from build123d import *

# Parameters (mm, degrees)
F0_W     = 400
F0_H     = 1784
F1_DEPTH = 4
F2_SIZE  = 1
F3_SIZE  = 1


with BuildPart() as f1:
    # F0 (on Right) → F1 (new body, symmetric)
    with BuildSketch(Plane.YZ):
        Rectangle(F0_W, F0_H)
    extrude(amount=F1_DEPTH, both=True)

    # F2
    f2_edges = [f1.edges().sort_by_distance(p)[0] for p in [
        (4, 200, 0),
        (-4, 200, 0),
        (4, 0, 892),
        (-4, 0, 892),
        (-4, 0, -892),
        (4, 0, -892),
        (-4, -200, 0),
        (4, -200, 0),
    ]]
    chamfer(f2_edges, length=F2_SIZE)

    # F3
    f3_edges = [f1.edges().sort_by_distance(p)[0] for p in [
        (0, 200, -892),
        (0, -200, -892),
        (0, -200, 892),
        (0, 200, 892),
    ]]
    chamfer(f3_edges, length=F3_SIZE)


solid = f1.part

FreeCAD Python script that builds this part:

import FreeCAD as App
import Part
import Sketcher


def edges_at(feature, points):
    """Names of the edges that pass closest to the given points."""
    edges = feature.Shape.Edges
    near = lambda p: min(range(len(edges)), key=lambda i: edges[i].distToShape(Part.Vertex(*p))[0])
    return sorted({f"Edge{near(p) + 1}" for p in points})


def add_polygon(sketch, points):
    """Adds a closed chain of lines whose ends are joined by coincident constraints."""
    first, n = sketch.GeometryCount, len(points)
    for a, b in zip(points, points[1:] + points[:1]):
        sketch.addGeometry(Part.LineSegment(App.Vector(*a, 0), App.Vector(*b, 0)), False)
    for i in range(n):
        sketch.addConstraint(Sketcher.Constraint("Coincident", first + i, 2, first + (i + 1) % n, 1))

doc = App.newDocument("Part")
params = doc.addObject("Spreadsheet::Sheet", "Params")
for row, (alias, value) in enumerate([
    ("sketch1_width", "400 mm"),
    ("sketch1_height", "1784 mm"),
    ("pad1_length", "8 mm"),
    ("chamfer_size", "1 mm"),
    ("chamfer2_size", "1 mm"),
], start=1):
    params.set(f"A{row}", alias)
    params.set(f"B{row}", "=" + value)
    params.setAlias(f"B{row}", alias)

body = doc.addObject("PartDesign::Body", "Body")

# Sketch on YZ plane
sketch1 = body.newObject("Sketcher::SketchObject", "Sketch")
sketch1.AttachmentSupport = (doc.getObject("YZ_Plane"), [""])
sketch1.MapMode = "FlatFace"
add_polygon(sketch1, [(-200, 892), (-200, -892), (200, -892), (200, 892)])  # lines 0-3
sketch1.addConstraint(Sketcher.Constraint("Vertical", 0))
sketch1.addConstraint(Sketcher.Constraint("Horizontal", 1))
sketch1.addConstraint(Sketcher.Constraint("Vertical", 2))
sketch1.addConstraint(Sketcher.Constraint("Horizontal", 3))
sketch1.addConstraint(Sketcher.Constraint("Symmetric", 0, 2, 2, 2, -1, 1))
sketch1.addConstraint(Sketcher.Constraint("DistanceX", 1, 1, 1, 2, 400.0))
sketch1.addConstraint(Sketcher.Constraint("DistanceY", 0, 2, 0, 1, 1784.0))
sketch1.setExpression("Constraints[9]", "Params.sketch1_width")
sketch1.setExpression("Constraints[10]", "Params.sketch1_height")
pad1 = body.newObject("PartDesign::Pad", "Pad")
pad1.Profile = sketch1
pad1.setExpression("Length", "Params.pad1_length")
pad1.Midplane = True
doc.recompute()

chamfer = body.newObject("PartDesign::Chamfer", "Chamfer")
chamfer.Base = (pad1, edges_at(pad1, [
    (4, 200, 0),
    (-4, 200, 0),
    (4, 0, 892),
    (-4, 0, 892),
    (-4, 0, -892),
    (4, 0, -892),
    (-4, -200, 0),
    (4, -200, 0),
]))
chamfer.setExpression("Size", "Params.chamfer_size")
doc.recompute()

chamfer2 = body.newObject("PartDesign::Chamfer", "Chamfer001")
chamfer2.Base = (chamfer, edges_at(chamfer, [
    (0, 200, -892),
    (0, -200, -892),
    (0, -200, 892),
    (0, 200, 892),
]))
chamfer2.setExpression("Size", "Params.chamfer2_size")

doc.recompute()
